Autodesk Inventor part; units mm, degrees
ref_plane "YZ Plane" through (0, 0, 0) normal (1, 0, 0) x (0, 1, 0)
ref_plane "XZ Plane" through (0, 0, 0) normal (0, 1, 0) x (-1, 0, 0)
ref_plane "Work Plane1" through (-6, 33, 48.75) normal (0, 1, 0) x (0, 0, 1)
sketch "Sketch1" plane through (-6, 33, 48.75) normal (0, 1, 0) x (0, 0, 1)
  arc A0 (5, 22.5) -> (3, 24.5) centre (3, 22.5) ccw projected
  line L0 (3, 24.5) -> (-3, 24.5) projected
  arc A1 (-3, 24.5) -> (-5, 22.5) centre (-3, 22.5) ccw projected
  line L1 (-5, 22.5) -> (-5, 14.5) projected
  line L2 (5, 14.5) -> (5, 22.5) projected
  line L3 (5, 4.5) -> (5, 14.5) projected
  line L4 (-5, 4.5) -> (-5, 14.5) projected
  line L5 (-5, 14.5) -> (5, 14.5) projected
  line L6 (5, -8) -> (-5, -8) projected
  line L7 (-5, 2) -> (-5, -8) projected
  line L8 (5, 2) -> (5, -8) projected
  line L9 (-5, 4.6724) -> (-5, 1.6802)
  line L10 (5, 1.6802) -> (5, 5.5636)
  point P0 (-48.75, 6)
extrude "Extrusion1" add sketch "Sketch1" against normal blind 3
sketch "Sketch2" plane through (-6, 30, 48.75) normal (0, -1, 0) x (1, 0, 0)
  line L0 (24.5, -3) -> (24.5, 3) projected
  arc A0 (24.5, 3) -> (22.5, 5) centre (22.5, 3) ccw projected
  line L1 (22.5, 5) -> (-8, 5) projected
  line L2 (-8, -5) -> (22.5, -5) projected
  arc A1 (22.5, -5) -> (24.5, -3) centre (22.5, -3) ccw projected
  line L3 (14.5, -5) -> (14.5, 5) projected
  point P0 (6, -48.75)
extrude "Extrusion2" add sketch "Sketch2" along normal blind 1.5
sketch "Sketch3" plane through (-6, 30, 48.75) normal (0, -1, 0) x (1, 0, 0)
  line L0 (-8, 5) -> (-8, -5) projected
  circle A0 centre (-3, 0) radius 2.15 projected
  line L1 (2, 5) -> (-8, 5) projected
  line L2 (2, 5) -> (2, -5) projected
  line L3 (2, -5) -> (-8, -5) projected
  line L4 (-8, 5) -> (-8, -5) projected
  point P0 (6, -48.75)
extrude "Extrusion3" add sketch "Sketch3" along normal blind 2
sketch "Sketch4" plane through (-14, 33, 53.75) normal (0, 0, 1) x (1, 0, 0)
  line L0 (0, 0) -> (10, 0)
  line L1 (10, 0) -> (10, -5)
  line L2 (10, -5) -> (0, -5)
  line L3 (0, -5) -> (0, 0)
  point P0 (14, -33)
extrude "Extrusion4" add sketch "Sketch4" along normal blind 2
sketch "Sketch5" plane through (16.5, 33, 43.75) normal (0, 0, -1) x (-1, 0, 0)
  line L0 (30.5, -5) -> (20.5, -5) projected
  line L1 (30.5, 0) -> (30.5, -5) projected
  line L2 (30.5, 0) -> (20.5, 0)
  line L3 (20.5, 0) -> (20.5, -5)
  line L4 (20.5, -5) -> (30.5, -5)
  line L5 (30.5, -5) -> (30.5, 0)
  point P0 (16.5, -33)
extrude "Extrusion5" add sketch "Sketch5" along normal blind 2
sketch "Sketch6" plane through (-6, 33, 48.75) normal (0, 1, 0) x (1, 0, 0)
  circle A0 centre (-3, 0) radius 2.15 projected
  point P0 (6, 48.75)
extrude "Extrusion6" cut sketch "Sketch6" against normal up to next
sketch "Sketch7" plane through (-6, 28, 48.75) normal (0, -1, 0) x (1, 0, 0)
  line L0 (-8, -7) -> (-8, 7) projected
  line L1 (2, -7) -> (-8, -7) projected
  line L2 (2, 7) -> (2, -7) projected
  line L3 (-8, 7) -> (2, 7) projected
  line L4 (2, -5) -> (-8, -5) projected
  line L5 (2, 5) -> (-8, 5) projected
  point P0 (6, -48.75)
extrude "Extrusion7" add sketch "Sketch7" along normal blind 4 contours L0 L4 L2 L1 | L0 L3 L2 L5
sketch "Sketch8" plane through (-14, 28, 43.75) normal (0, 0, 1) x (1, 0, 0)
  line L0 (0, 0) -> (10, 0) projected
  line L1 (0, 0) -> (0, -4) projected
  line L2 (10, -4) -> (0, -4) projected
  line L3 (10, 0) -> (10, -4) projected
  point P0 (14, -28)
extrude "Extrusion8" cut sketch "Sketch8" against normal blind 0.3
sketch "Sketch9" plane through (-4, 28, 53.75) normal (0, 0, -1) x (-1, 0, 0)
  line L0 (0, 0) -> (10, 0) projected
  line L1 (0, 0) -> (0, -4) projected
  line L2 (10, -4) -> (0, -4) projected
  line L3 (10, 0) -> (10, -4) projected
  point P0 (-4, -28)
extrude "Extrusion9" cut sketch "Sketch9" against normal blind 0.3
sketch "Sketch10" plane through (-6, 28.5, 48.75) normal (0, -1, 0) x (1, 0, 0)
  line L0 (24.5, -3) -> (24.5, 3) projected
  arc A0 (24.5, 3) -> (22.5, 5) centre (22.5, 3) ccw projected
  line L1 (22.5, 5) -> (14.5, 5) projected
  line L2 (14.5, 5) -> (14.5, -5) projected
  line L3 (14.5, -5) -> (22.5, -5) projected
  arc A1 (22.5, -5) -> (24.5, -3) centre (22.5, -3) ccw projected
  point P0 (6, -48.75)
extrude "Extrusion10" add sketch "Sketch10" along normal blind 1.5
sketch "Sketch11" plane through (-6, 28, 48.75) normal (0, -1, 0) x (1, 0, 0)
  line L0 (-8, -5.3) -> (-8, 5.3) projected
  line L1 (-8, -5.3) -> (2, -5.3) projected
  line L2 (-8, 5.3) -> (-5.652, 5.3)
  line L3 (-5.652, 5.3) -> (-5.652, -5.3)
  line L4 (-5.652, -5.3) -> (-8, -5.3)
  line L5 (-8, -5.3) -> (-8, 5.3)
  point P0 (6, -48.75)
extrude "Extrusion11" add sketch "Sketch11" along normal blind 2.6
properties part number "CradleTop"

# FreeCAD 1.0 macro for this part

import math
import FreeCAD as App
import Part
import Sketcher
from FreeCAD import Vector

doc = App.newDocument("Part")
body = doc.addObject("PartDesign::Body", "Body")

# Sketch on XZ plane
sketch1 = body.newObject("Sketcher::SketchObject", "Sketch")
sketch1.AttachmentSupport = (doc.getObject("XZ_Plane"), [""])
sketch1.MapMode = "FlatFace"
sketch1.AttachmentOffset = App.Placement(Vector(0, 0, -33), App.Rotation())
sketch1.addGeometry([
    Part.ArcOfCircle(Part.Circle(Vector(16.5, 51.75, 0), Vector(0, 0, 1), 2), math.radians(0), math.radians(90)),  # 0
    Part.LineSegment(Vector(18.5, 51.75, 0), Vector(18.5, 45.75, 0)),  # 1
    Part.ArcOfCircle(Part.Circle(Vector(16.5, 45.75, 0), Vector(0, 0, 1), 2), math.radians(-90), math.radians(0)),  # 2
    Part.LineSegment(Vector(16.5, 43.75, 0), Vector(-14, 43.75, 0)),  # 3
    Part.LineSegment(Vector(-14, 43.75, 0), Vector(-14, 53.75, 0)),  # 4
    Part.LineSegment(Vector(-14, 53.75, 0), Vector(16.5, 53.75, 0)),  # 5
], False)
sketch1.addConstraint([
    Sketcher.Constraint("Tangent", 0, 1, 1, 1),
    Sketcher.Constraint("Tangent", 1, 2, 2, 2),
    Sketcher.Constraint("Tangent", 2, 1, 3, 1),
    Sketcher.Constraint("Coincident", 3, 2, 4, 1),
    Sketcher.Constraint("Coincident", 4, 2, 5, 1),
    Sketcher.Constraint("Tangent", 5, 2, 0, 2),
    Sketcher.Constraint("Vertical", 1),
    Sketcher.Constraint("Horizontal", 3),
    Sketcher.Constraint("Vertical", 4),
    Sketcher.Constraint("Horizontal", 5),
    Sketcher.Constraint("Equal", 0, 2),
    Sketcher.Constraint("Radius", 0, 2.0),
    Sketcher.Constraint("DistanceY", 1, 2, 1, 1, 6.0),
    Sketcher.Constraint("DistanceX", 3, 2, 3, 1, 30.5),
    Sketcher.Constraint("DistanceX", 3, 2, -1, 1, 14.0),
    Sketcher.Constraint("DistanceY", -1, 1, 0, 3, 51.75),
])
pad1 = body.newObject("PartDesign::Pad", "Pad")
pad1.Profile = sketch1
pad1.Length = 3

# Sketch on XZ plane
sketch2 = body.newObject("Sketcher::SketchObject", "Sketch001")
sketch2.AttachmentSupport = (doc.getObject("XZ_Plane"), [""])
sketch2.MapMode = "FlatFace"
sketch2.AttachmentOffset = App.Placement(Vector(0, 0, -30), App.Rotation())
sketch2.addGeometry([
    Part.ArcOfCircle(Part.Circle(Vector(16.5, 45.75, 0), Vector(0, 0, 1), 2), math.radians(-90), math.radians(0)),  # 0
    Part.LineSegment(Vector(18.5, 45.75, 0), Vector(18.5, 51.75, 0)),  # 1
    Part.ArcOfCircle(Part.Circle(Vector(16.5, 51.75, 0), Vector(0, 0, 1), 2), math.radians(0), math.radians(90)),  # 2
    Part.LineSegment(Vector(16.5, 53.75, 0), Vector(8.5, 53.75, 0)),  # 3
    Part.LineSegment(Vector(8.5, 53.75, 0), Vector(8.5, 43.75, 0)),  # 4
    Part.LineSegment(Vector(8.5, 43.75, 0), Vector(16.5, 43.75, 0)),  # 5
], False)
sketch2.addConstraint([
    Sketcher.Constraint("Tangent", 0, 2, 1, 1),
    Sketcher.Constraint("Tangent", 1, 2, 2, 1),
    Sketcher.Constraint("Tangent", 2, 2, 3, 1),
    Sketcher.Constraint("Coincident", 3, 2, 4, 1),
    Sketcher.Constraint("Coincident", 4, 2, 5, 1),
    Sketcher.Constraint("Tangent", 5, 2, 0, 1),
    Sketcher.Constraint("Vertical", 1),
    Sketcher.Constraint("Horizontal", 3),
    Sketcher.Constraint("Vertical", 4),
    Sketcher.Constraint("Horizontal", 5),
    Sketcher.Constraint("Equal", 0, 2),
    Sketcher.Constraint("Radius", 0, 2.0),
    Sketcher.Constraint("DistanceX", 3, 2, 3, 1, 8.0),
    Sketcher.Constraint("DistanceY", 1, 1, 1, 2, 6.0),
    Sketcher.Constraint("DistanceX", -1, 1, 0, 3, 16.5),
    Sketcher.Constraint("DistanceY", -1, 1, 0, 3, 45.75),
])
pad2 = body.newObject("PartDesign::Pad", "Pad001")
pad2.Profile = sketch2
pad2.Length = 1.5

# Sketch on XZ plane
sketch3 = body.newObject("Sketcher::SketchObject", "Sketch002")
sketch3.AttachmentSupport = (doc.getObject("XZ_Plane"), [""])
sketch3.MapMode = "FlatFace"
sketch3.AttachmentOffset = App.Placement(Vector(0, 0, -30), App.Rotation())
sketch3.addGeometry([
    Part.LineSegment(Vector(-4, 53.75, 0), Vector(-14, 53.75, 0)),  # 0
    Part.LineSegment(Vector(-14, 53.75, 0), Vector(-14, 43.75, 0)),  # 1
    Part.LineSegment(Vector(-14, 43.75, 0), Vector(-4, 43.75, 0)),  # 2
    Part.LineSegment(Vector(-4, 43.75, 0), Vector(-4, 53.75, 0)),  # 3
    Part.Circle(Vector(-9, 48.75, 0), Vector(0, 0, 1), 2.15),  # 4
], False)
sketch3.addConstraint([
    Sketcher.Constraint("Coincident", 0, 2, 1, 1),
    Sketcher.Constraint("Coincident", 1, 2, 2, 1),
    Sketcher.Constraint("Coincident", 2, 2, 3, 1),
    Sketcher.Constraint("Coincident", 3, 2, 0, 1),
    Sketcher.Constraint("Horizontal", 0),
    Sketcher.Constraint("Vertical", 1),
    Sketcher.Constraint("Horizontal", 2),
    Sketcher.Constraint("Vertical", 3),
    Sketcher.Constraint("Equal", 2, 1),
    Sketcher.Constraint("Diameter", 4, 4.3),
    Sketcher.Constraint("DistanceX", 0, 2, 0, 1, 10.0),
    Sketcher.Constraint("DistanceX", 4, 3, -1, 1, 9.0),
    Sketcher.Constraint("DistanceX", 0, 2, -1, 1, 14.0),
    Sketcher.Constraint("DistanceY", 4, 3, 0, 2, 5.0),
    Sketcher.Constraint("DistanceY", -1, 1, 4, 3, 48.75),
])
pad3 = body.newObject("PartDesign::Pad", "Pad002")
pad3.Profile = sketch3
pad3.Length = 2

# Sketch on XY plane
sketch4 = body.newObject("Sketcher::SketchObject", "Sketch003")
sketch4.AttachmentSupport = (doc.getObject("XY_Plane"), [""])
sketch4.MapMode = "FlatFace"
sketch4.AttachmentOffset = App.Placement(Vector(0, 0, 53.75), App.Rotation())
sketch4.addGeometry([
    Part.LineSegment(Vector(-4, 33, 0), Vector(-14, 33, 0)),
    Part.LineSegment(Vector(-14, 33, 0), Vector(-14, 28, 0)),
    Part.LineSegment(Vector(-14, 28, 0), Vector(-4, 28, 0)),
    Part.LineSegment(Vector(-4, 28, 0), Vector(-4, 33, 0)),
], False)
sketch4.addConstraint([
    Sketcher.Constraint("Coincident", 0, 2, 1, 1),
    Sketcher.Constraint("Coincident", 1, 2, 2, 1),
    Sketcher.Constraint("Coincident", 2, 2, 3, 1),
    Sketcher.Constraint("Coincident", 3, 2, 0, 1),
    Sketcher.Constraint("Horizontal", 0),
    Sketcher.Constraint("Vertical", 1),
    Sketcher.Constraint("Horizontal", 2),
    Sketcher.Constraint("Vertical", 3),
    Sketcher.Constraint("DistanceX", 0, 2, 0, 1, 10.0),
    Sketcher.Constraint("DistanceY", 1, 2, 1, 1, 5.0),
    Sketcher.Constraint("DistanceX", 0, 2, -1, 1, 14.0),
    Sketcher.Constraint("DistanceY", -1, 1, 0, 2, 33.0),
])
pad4 = body.newObject("PartDesign::Pad", "Pad003")
pad4.Profile = sketch4
pad4.Length = 2

# Sketch on XY plane
sketch5 = body.newObject("Sketcher::SketchObject", "Sketch004")
sketch5.AttachmentSupport = (doc.getObject("XY_Plane"), [""])
sketch5.MapMode = "FlatFace"
sketch5.AttachmentOffset = App.Placement(Vector(0, 0, 43.75), App.Rotation())
sketch5.addGeometry([
    Part.LineSegment(Vector(-4, 28, 0), Vector(-14, 28, 0)),
    Part.LineSegment(Vector(-14, 28, 0), Vector(-14, 33, 0)),
    Part.LineSegment(Vector(-14, 33, 0), Vector(-4, 33, 0)),
    Part.LineSegment(Vector(-4, 33, 0), Vector(-4, 28, 0)),
], False)
sketch5.addConstraint([
    Sketcher.Constraint("Coincident", 0, 2, 1, 1),
    Sketcher.Constraint("Coincident", 1, 2, 2, 1),
    Sketcher.Constraint("Coincident", 2, 2, 3, 1),
    Sketcher.Constraint("Coincident", 3, 2, 0, 1),
    Sketcher.Constraint("Horizontal", 0),
    Sketcher.Constraint("Vertical", 1),
    Sketcher.Constraint("Horizontal", 2),
    Sketcher.Constraint("Vertical", 3),
    Sketcher.Constraint("DistanceX", 0, 2, 0, 1, 10.0),
    Sketcher.Constraint("DistanceY", 1, 1, 1, 2, 5.0),
    Sketcher.Constraint("DistanceX", 0, 2, -1, 1, 14.0),
    Sketcher.Constraint("DistanceY", -1, 1, 0, 2, 28.0),
])
pad5 = body.newObject("PartDesign::Pad", "Pad004")
pad5.Profile = sketch5
pad5.Length = 2
pad5.Reversed = True

# Sketch on XZ plane
sketch6 = body.newObject("Sketcher::SketchObject", "Sketch005")
sketch6.AttachmentSupport = (doc.getObject("XZ_Plane"), [""])
sketch6.MapMode = "FlatFace"
sketch6.AttachmentOffset = App.Placement(Vector(0, 0, -33), App.Rotation())
sketch6.addGeometry(Part.Circle(Vector(-9, 48.75, 0), Vector(0, 0, 1), 2.15), False)
sketch6.addConstraint([
    Sketcher.Constraint("Diameter", 0, 4.3),
    Sketcher.Constraint("DistanceX", 0, 3, -1, 1, 9.0),
    Sketcher.Constraint("DistanceY", -1, 1, 0, 3, 48.75),
])
pocket1 = body.newObject("PartDesign::Pocket", "Pocket")
pocket1.Profile = sketch6
pocket1.Type = "UpToFirst"
pocket1.Reversed = True

# Sketch on XZ plane
sketch7 = body.newObject("Sketcher::SketchObject", "Sketch006")
sketch7.AttachmentSupport = (doc.getObject("XZ_Plane"), [""])
sketch7.MapMode = "FlatFace"
sketch7.AttachmentOffset = App.Placement(Vector(0, 0, -28), App.Rotation())
sketch7.addGeometry([
    Part.LineSegment(Vector(-14, 43.75, 0), Vector(-14, 41.75, 0)),  # 0
    Part.LineSegment(Vector(-14, 41.75, 0), Vector(-4, 41.75, 0)),  # 1
    Part.LineSegment(Vector(-4, 41.75, 0), Vector(-4, 43.75, 0)),  # 2
    Part.LineSegment(Vector(-4, 43.75, 0), Vector(-14, 43.75, 0)),  # 3
    Part.LineSegment(Vector(-14, 55.75, 0), Vector(-14, 53.75, 0)),  # 4
    Part.LineSegment(Vector(-14, 53.75, 0), Vector(-4, 53.75, 0)),  # 5
    Part.LineSegment(Vector(-4, 53.75, 0), Vector(-4, 55.75, 0)),  # 6
    Part.LineSegment(Vector(-4, 55.75, 0), Vector(-14, 55.75, 0)),  # 7
], False)
sketch7.addConstraint([
    Sketcher.Constraint("Coincident", 0, 2, 1, 1),
    Sketcher.Constraint("Coincident", 1, 2, 2, 1),
    Sketcher.Constraint("Coincident", 2, 2, 3, 1),
    Sketcher.Constraint("Coincident", 3, 2, 0, 1),
    Sketcher.Constraint("Coincident", 4, 2, 5, 1),
    Sketcher.Constraint("Coincident", 5, 2, 6, 1),
    Sketcher.Constraint("Coincident", 6, 2, 7, 1),
    Sketcher.Constraint("Coincident", 7, 2, 4, 1),
    Sketcher.Constraint("Vertical", 0),
    Sketcher.Constraint("Horizontal", 1),
    Sketcher.Constraint("Vertical", 2),
    Sketcher.Constraint("Horizontal", 3),
    Sketcher.Constraint("Vertical", 4),
    Sketcher.Constraint("Horizontal", 5),
    Sketcher.Constraint("Vertical", 6),
    Sketcher.Constraint("Horizontal", 7),
    Sketcher.Constraint("Vertical", 3, 2, 4, 2),
    Sketcher.Constraint("Vertical", 2, 2, 5, 2),
    Sketcher.Constraint("Equal", 2, 4),
    Sketcher.Constraint("DistanceX", 1, 1, 1, 2, 10.0),
    Sketcher.Constraint("DistanceY", 0, 2, 0, 1, 2.0),
    Sketcher.Constraint("DistanceX", 0, 2, -1, 1, 14.0),
    Sketcher.Constraint("DistanceY", 3, 2, 4, 2, 10.0),
    Sketcher.Constraint("DistanceY", -1, 1, 0, 2, 41.75),
])
pad6 = body.newObject("PartDesign::Pad", "Pad005")
pad6.Profile = sketch7
pad6.Length = 4

# Sketch on XY plane
sketch8 = body.newObject("Sketcher::SketchObject", "Sketch007")
sketch8.AttachmentSupport = (doc.getObject("XY_Plane"), [""])
sketch8.MapMode = "FlatFace"
sketch8.AttachmentOffset = App.Placement(Vector(0, 0, 43.75), App.Rotation())
sketch8.addGeometry([
    Part.LineSegment(Vector(-4, 28, 0), Vector(-14, 28, 0)),
    Part.LineSegment(Vector(-14, 28, 0), Vector(-14, 24, 0)),
    Part.LineSegment(Vector(-14, 24, 0), Vector(-4, 24, 0)),
    Part.LineSegment(Vector(-4, 24, 0), Vector(-4, 28, 0)),
], False)
sketch8.addConstraint([
    Sketcher.Constraint("Coincident", 0, 2, 1, 1),
    Sketcher.Constraint("Coincident", 1, 2, 2, 1),
    Sketcher.Constraint("Coincident", 2, 2, 3, 1),
    Sketcher.Constraint("Coincident", 3, 2, 0, 1),
    Sketcher.Constraint("Horizontal", 0),
    Sketcher.Constraint("Vertical", 1),
    Sketcher.Constraint("Horizontal", 2),
    Sketcher.Constraint("Vertical", 3),
    Sketcher.Constraint("DistanceX", 0, 2, 0, 1, 10.0),
    Sketcher.Constraint("DistanceY", 1, 2, 1, 1, 4.0),
    Sketcher.Constraint("DistanceX", 0, 2, -1, 1, 14.0),
    Sketcher.Constraint("DistanceY", -1, 1, 0, 2, 28.0),
])
pocket2 = body.newObject("PartDesign::Pocket", "Pocket001")
pocket2.Profile = sketch8
pocket2.Length = 0.3

# Sketch on XY plane
sketch9 = body.newObject("Sketcher::SketchObject", "Sketch008")
sketch9.AttachmentSupport = (doc.getObject("XY_Plane"), [""])
sketch9.MapMode = "FlatFace"
sketch9.AttachmentOffset = App.Placement(Vector(0, 0, 53.75), App.Rotation())
sketch9.addGeometry([
    Part.LineSegment(Vector(-14, 28, 0), Vector(-4, 28, 0)),
    Part.LineSegment(Vector(-4, 28, 0), Vector(-4, 24, 0)),
    Part.LineSegment(Vector(-4, 24, 0), Vector(-14, 24, 0)),
    Part.LineSegment(Vector(-14, 24, 0), Vector(-14, 28, 0)),
], False)
sketch9.addConstraint([
    Sketcher.Constraint("Coincident", 0, 2, 1, 1),
    Sketcher.Constraint("Coincident", 1, 2, 2, 1),
    Sketcher.Constraint("Coincident", 2, 2, 3, 1),
    Sketcher.Constraint("Coincident", 3, 2, 0, 1),
    Sketcher.Constraint("Horizontal", 0),
    Sketcher.Constraint("Vertical", 1),
    Sketcher.Constraint("Horizontal", 2),
    Sketcher.Constraint("Vertical", 3),
    Sketcher.Constraint("DistanceX", 0, 1, 0, 2, 10.0),
    Sketcher.Constraint("DistanceY", 1, 2, 1, 1, 4.0),
    Sketcher.Constraint("DistanceX", 0, 2, -1, 1, 4.0),
    Sketcher.Constraint("DistanceY", -1, 1, 0, 2, 28.0),
])
pocket3 = body.newObject("PartDesign::Pocket", "Pocket002")
pocket3.Profile = sketch9
pocket3.Length = 0.3
pocket3.Reversed = True

# Sketch on XZ plane
sketch10 = body.newObject("Sketcher::SketchObject", "Sketch009")
sketch10.AttachmentSupport = (doc.getObject("XZ_Plane"), [""])
sketch10.MapMode = "FlatFace"
sketch10.AttachmentOffset = App.Placement(Vector(0, 0, -28.5), App.Rotation())
sketch10.addGeometry([
    Part.ArcOfCircle(Part.Circle(Vector(16.5, 45.75, 0), Vector(0, 0, 1), 2), math.radians(-90), math.radians(0)),  # 0
    Part.LineSegment(Vector(18.5, 45.75, 0), Vector(18.5, 51.75, 0)),  # 1
    Part.ArcOfCircle(Part.Circle(Vector(16.5, 51.75, 0), Vector(0, 0, 1), 2), math.radians(0), math.radians(90)),  # 2
    Part.LineSegment(Vector(16.5, 53.75, 0), Vector(8.5, 53.75, 0)),  # 3
    Part.LineSegment(Vector(8.5, 53.75, 0), Vector(8.5, 43.75, 0)),  # 4
    Part.LineSegment(Vector(8.5, 43.75, 0), Vector(16.5, 43.75, 0)),  # 5
], False)
sketch10.addConstraint([
    Sketcher.Constraint("Tangent", 0, 2, 1, 1),
    Sketcher.Constraint("Tangent", 1, 2, 2, 1),
    Sketcher.Constraint("Tangent", 2, 2, 3, 1),
    Sketcher.Constraint("Coincident", 3, 2, 4, 1),
    Sketcher.Constraint("Coincident", 4, 2, 5, 1),
    Sketcher.Constraint("Tangent", 5, 2, 0, 1),
    Sketcher.Constraint("Vertical", 1),
    Sketcher.Constraint("Horizontal", 3),
    Sketcher.Constraint("Vertical", 4),
    Sketcher.Constraint("Horizontal", 5),
    Sketcher.Constraint("Equal", 0, 2),
    Sketcher.Constraint("Radius", 0, 2.0),
    Sketcher.Constraint("DistanceX", 3, 2, 3, 1, 8.0),
    Sketcher.Constraint("DistanceY", 1, 1, 1, 2, 6.0),
    Sketcher.Constraint("DistanceX", -1, 1, 0, 3, 16.5),
    Sketcher.Constraint("DistanceY", -1, 1, 0, 3, 45.75),
])
pad7 = body.newObject("PartDesign::Pad", "Pad006")
pad7.Profile = sketch10
pad7.Length = 1.5

# Sketch on XZ plane
sketch11 = body.newObject("Sketcher::SketchObject", "Sketch010")
sketch11.AttachmentSupport = (doc.getObject("XZ_Plane"), [""])
sketch11.MapMode = "FlatFace"
sketch11.AttachmentOffset = App.Placement(Vector(0, 0, -28), App.Rotation())
sketch11.addGeometry([
    Part.LineSegment(Vector(-14, 54.05, 0), Vector(-14, 43.45, 0)),
    Part.LineSegment(Vector(-14, 43.45, 0), Vector(-11.652, 43.45, 0)),
    Part.LineSegment(Vector(-11.652, 43.45, 0), Vector(-11.652, 54.05, 0)),
    Part.LineSegment(Vector(-11.652, 54.05, 0), Vector(-14, 54.05, 0)),
], False)
sketch11.addConstraint([
    Sketcher.Constraint("Coincident", 0, 2, 1, 1),
    Sketcher.Constraint("Coincident", 1, 2, 2, 1),
    Sketcher.Constraint("Coincident", 2, 2, 3, 1),
    Sketcher.Constraint("Coincident", 3, 2, 0, 1),
    Sketcher.Constraint("Vertical", 0),
    Sketcher.Constraint("Horizontal", 1),
    Sketcher.Constraint("Vertical", 2),
    Sketcher.Constraint("Horizontal", 3),
    Sketcher.Constraint("DistanceY", 0, 2, 0, 1, 10.6),
    Sketcher.Constraint("DistanceX", 0, 2, -1, 1, 14.0),
    Sketcher.Constraint("DistanceX", 1, 1, 1, 2, 2.348),
    Sketcher.Constraint("DistanceY", -1, 1, 0, 2, 43.45),
])
pad8 = body.newObject("PartDesign::Pad", "Pad007")
pad8.Profile = sketch11
pad8.Length = 2.6

doc.recompute()
